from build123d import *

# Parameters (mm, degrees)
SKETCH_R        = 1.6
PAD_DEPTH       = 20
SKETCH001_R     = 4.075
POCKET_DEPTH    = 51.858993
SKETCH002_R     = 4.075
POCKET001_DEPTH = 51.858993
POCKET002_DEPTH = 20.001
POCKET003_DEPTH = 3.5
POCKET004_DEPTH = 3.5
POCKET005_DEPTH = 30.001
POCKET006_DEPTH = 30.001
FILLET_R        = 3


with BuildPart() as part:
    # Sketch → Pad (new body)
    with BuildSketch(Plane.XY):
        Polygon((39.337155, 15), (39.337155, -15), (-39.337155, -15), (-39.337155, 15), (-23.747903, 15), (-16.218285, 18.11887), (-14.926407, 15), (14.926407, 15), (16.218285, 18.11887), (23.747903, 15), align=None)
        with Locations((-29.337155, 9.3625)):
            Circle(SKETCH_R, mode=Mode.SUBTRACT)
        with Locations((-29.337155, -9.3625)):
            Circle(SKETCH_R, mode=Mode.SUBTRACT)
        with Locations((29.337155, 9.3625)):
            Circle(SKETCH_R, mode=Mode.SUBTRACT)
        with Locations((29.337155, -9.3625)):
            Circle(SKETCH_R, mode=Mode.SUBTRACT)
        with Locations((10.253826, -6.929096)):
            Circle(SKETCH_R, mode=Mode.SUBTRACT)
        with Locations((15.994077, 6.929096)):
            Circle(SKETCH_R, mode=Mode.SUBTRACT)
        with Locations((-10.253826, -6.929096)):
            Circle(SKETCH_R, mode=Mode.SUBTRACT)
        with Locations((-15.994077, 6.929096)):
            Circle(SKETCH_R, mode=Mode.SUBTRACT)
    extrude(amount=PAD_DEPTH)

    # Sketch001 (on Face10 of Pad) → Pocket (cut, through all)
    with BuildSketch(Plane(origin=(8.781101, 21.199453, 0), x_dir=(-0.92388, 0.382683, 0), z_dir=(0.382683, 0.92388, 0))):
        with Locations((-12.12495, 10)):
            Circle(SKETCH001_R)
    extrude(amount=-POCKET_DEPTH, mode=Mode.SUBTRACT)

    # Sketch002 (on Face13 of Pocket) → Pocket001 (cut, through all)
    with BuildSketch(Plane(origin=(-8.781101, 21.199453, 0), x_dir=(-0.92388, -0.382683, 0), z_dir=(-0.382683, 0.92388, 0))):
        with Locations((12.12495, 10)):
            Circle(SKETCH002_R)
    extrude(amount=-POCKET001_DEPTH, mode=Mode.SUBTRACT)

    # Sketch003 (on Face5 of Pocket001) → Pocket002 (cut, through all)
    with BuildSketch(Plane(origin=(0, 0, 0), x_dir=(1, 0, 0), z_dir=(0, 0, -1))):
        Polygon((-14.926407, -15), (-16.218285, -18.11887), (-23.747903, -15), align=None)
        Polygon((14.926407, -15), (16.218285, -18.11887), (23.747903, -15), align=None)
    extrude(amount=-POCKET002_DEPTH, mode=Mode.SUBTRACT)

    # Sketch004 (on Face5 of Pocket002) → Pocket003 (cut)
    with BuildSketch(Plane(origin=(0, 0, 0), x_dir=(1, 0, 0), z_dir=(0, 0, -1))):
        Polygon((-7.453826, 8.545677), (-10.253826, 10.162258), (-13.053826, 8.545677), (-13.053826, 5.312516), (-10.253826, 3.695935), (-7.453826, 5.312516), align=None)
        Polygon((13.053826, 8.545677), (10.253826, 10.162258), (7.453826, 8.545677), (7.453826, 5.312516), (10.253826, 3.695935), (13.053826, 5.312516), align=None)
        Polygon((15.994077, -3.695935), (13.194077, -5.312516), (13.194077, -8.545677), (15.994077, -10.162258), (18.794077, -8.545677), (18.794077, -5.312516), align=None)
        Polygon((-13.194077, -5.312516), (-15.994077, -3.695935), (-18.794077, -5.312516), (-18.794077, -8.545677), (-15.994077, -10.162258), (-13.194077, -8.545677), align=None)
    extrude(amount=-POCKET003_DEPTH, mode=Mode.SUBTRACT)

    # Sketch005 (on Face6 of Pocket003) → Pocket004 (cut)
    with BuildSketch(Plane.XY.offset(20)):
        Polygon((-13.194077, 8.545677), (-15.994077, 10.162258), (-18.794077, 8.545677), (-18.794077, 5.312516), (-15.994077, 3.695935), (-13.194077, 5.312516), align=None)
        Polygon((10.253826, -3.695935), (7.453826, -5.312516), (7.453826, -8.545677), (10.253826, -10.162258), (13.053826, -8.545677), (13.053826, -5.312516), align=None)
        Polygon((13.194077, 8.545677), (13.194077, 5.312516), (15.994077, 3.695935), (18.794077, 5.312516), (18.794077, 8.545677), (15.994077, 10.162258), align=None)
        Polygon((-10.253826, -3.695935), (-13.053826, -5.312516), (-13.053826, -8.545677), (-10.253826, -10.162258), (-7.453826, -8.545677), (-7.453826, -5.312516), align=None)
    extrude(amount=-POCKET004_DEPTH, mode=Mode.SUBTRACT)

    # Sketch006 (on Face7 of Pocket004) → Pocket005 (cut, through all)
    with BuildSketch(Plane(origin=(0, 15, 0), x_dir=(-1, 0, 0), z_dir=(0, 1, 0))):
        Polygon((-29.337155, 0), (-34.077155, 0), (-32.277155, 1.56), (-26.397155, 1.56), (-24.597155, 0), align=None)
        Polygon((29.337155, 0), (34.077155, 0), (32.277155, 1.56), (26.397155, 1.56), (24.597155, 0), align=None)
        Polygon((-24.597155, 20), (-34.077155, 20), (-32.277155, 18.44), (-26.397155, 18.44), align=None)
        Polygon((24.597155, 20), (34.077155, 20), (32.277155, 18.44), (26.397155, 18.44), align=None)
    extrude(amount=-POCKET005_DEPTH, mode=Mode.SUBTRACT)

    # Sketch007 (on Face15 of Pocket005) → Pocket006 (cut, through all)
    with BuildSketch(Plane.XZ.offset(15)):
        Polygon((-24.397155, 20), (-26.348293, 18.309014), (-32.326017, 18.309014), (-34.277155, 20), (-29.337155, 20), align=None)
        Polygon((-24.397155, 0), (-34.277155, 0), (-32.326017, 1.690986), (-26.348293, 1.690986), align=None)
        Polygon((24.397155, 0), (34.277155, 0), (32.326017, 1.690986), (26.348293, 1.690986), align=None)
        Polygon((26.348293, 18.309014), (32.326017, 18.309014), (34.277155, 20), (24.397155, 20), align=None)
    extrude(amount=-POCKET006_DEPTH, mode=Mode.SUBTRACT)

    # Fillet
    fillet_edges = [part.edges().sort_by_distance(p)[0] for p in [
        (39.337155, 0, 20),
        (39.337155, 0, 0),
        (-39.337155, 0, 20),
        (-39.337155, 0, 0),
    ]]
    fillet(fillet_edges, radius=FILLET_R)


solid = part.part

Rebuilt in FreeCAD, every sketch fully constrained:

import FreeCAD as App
import Part
import Sketcher
Q = App.Units.Quantity


def edges_at(feature, points):
    """Names of the edges that pass closest to the given points."""
    edges = feature.Shape.Edges
    near = lambda p: min(range(len(edges)), key=lambda i: edges[i].distToShape(Part.Vertex(*p))[0])
    return sorted({f"Edge{near(p) + 1}" for p in points})


def add_polygon(sketch, points):
    """Adds a closed chain of lines whose ends are joined by coincident constraints."""
    first, n = sketch.GeometryCount, len(points)
    for a, b in zip(points, points[1:] + points[:1]):
        sketch.addGeometry(Part.LineSegment(App.Vector(*a, 0), App.Vector(*b, 0)), False)
    for i in range(n):
        sketch.addConstraint(Sketcher.Constraint("Coincident", first + i, 2, first + (i + 1) % n, 1))

doc = App.newDocument("Part")
body = doc.addObject("PartDesign::Body", "Body")

# Sketch on XY plane
sketch1 = body.newObject("Sketcher::SketchObject", "Sketch")
sketch1.AttachmentSupport = (doc.getObject("XY_Plane"), [""])
sketch1.MapMode = "FlatFace"
add_polygon(sketch1, [(39.3, -15), (39.3, 15), (23.7, 15), (16.2, 18.1), (14.9, 15), (-14.9, 15), (-16.2, 18.1), (-23.7, 15), (-39.3, 15), (-39.3, -15)])  # lines 0-9
sketch1.addGeometry(Part.Circle(App.Vector(29.3, -9.4, 0), App.Vector(0, 0, 1), 1.6), False)  # 10
sketch1.addGeometry(Part.Circle(App.Vector(10.3, -6.9, 0), App.Vector(0, 0, 1), 1.6), False)  # 11
sketch1.addGeometry(Part.Circle(App.Vector(-10.3, -6.9, 0), App.Vector(0, 0, 1), 1.6), False)  # 12
sketch1.addGeometry(Part.Circle(App.Vector(-29.3, -9.4, 0), App.Vector(0, 0, 1), 1.6), False)  # 13
sketch1.addGeometry(Part.Circle(App.Vector(16, 6.9, 0), App.Vector(0, 0, 1), 1.6), False)  # 14
sketch1.addGeometry(Part.Circle(App.Vector(29.3, 9.4, 0), App.Vector(0, 0, 1), 1.6), False)  # 15
sketch1.addGeometry(Part.Circle(App.Vector(-16, 6.9, 0), App.Vector(0, 0, 1), 1.6), False)  # 16
sketch1.addGeometry(Part.Circle(App.Vector(-29.3, 9.4, 0), App.Vector(0, 0, 1), 1.6), False)  # 17
sketch1.addConstraint([
    Sketcher.Constraint("Vertical", 0),
    Sketcher.Constraint("Horizontal", 1),
    Sketcher.Constraint("Horizontal", 4),
    Sketcher.Constraint("Horizontal", 7),
    Sketcher.Constraint("Vertical", 8),
    Sketcher.Constraint("Horizontal", 9),
    Sketcher.Constraint("Equal", 10, 11),
    Sketcher.Constraint("Equal", 11, 12),
    Sketcher.Constraint("Equal", 12, 13),
    Sketcher.Constraint("Equal", 13, 14),
    Sketcher.Constraint("Equal", 14, 15),
    Sketcher.Constraint("Equal", 15, 16),
    Sketcher.Constraint("Equal", 16, 17),
    Sketcher.Constraint("Symmetric", 13, 3, 15, 3, -1, 1),
    Sketcher.Constraint("Symmetric", 10, 3, 17, 3, -1, 1),
    Sketcher.Constraint("Symmetric", 0, 2, 8, 2, -1, 1),
    Sketcher.Constraint("Symmetric", 11, 3, 12, 3, -2),
    Sketcher.Constraint("Symmetric", 10, 3, 13, 3, -2),
    Sketcher.Constraint("Symmetric", 14, 3, 16, 3, -2),
    Sketcher.Constraint("Symmetric", 2, 2, 5, 2, -2),
    Sketcher.Constraint("Symmetric", 1, 2, 6, 2, -2),
    Sketcher.Constraint("Perpendicular", 2, 3),
    Sketcher.Constraint("Perpendicular", 5, 6),
    Sketcher.Constraint("Horizontal", 1, 2, 3, 2),
    Sketcher.Constraint("Diameter", 10, 3.2),
    Sketcher.Constraint("DistanceY", 0, 1, 0, 2, 30.0),
    Sketcher.Constraint("Angle", 2, Q("157.499999 deg")),
    Sketcher.Constraint("DistanceX", 15, 3, 0, 2, 10.0),
    Sketcher.Constraint("Distance", 2, 8.15),
    Sketcher.Constraint("DistanceY", 10, 3, 15, 3, 18.725),
    Sketcher.Constraint("DistanceX", 9, 1, 9, 2, 78.67431),
    Sketcher.Constraint("DistanceX", 1, 2, 1, 1, 15.589252),
    Sketcher.Constraint("DistanceX", 11, 3, 10, 3, 19.083329),
    Sketcher.Constraint("DistanceX", 11, 3, 14, 3, 5.740251),
    Sketcher.Constraint("DistanceY", 11, 3, -1, 1, 6.929096),
    Sketcher.Constraint("DistanceY", -1, 1, 14, 3, 6.929096),
])
pad1 = body.newObject("PartDesign::Pad", "Pad")
pad1.Profile = sketch1
pad1.Length = 20

# Sketch on an angled plane
sketch2 = body.newObject("Sketcher::SketchObject", "Sketch001")
sketch2.Placement = App.Placement(App.Vector(8.781101, 21.199453, 0), App.Rotation(App.Vector(-0.923879754, 0.382682898, 0), App.Vector(0, 0, 1), App.Vector(0.382682898, 0.923879754, 0), "ZXY"))
sketch2.addGeometry(Part.Circle(App.Vector(-12.1, 10, 0), App.Vector(0, 0, 1), 4.1), False)
sketch2.addConstraint([
    Sketcher.Constraint("Diameter", 0, 8.15),
    Sketcher.Constraint("DistanceY", -1, 1, 0, 3, 10.0),
    Sketcher.Constraint("DistanceX", 0, 3, -1, 1, 12.12495),
])
pocket1 = body.newObject("PartDesign::Pocket", "Pocket")
pocket1.Profile = sketch2
pocket1.Type = "ThroughAll"

# Sketch on an angled plane
sketch3 = body.newObject("Sketcher::SketchObject", "Sketch002")
sketch3.Placement = App.Placement(App.Vector(-8.781101, 21.199453, 0), App.Rotation(App.Vector(-0.923879754, -0.382682898, 0), App.Vector(0, 0, 1), App.Vector(-0.382682898, 0.923879754, 0), "ZXY"))
sketch3.addGeometry(Part.Circle(App.Vector(12.1, 10, 0), App.Vector(0, 0, 1), 4.1), False)
sketch3.addConstraint([
    Sketcher.Constraint("Diameter", 0, 8.15),
    Sketcher.Constraint("DistanceY", -1, 1, 0, 3, 10.0),
    Sketcher.Constraint("DistanceX", -1, 1, 0, 3, 12.12495),
])
pocket2 = body.newObject("PartDesign::Pocket", "Pocket001")
pocket2.Profile = sketch3
pocket2.Type = "ThroughAll"

# Sketch on XY plane
sketch4 = body.newObject("Sketcher::SketchObject", "Sketch003")
sketch4.AttachmentSupport = (doc.getObject("XY_Plane"), [""])
sketch4.MapMode = "FlatFace"
add_polygon(sketch4, [(-16.2, 18.1), (-14.9, 15), (-23.7, 15)])  # lines 0-2
add_polygon(sketch4, [(14.9, 15), (16.2, 18.1), (23.7, 15)])  # lines 3-5
sketch4.addConstraint([
    Sketcher.Constraint("Horizontal", 1),
    Sketcher.Constraint("Horizontal", 5),
    Sketcher.Constraint("Symmetric", 2, 2, 3, 2, -2),
    Sketcher.Constraint("Symmetric", 1, 2, 4, 2, -2),
    Sketcher.Constraint("Perpendicular", 0, 2),
    Sketcher.Constraint("Perpendicular", 3, 4),
    Sketcher.Constraint("DistanceY", -1, 1, 0, 2, 15.0),
    Sketcher.Constraint("Angle", 0, Q("-67.500004 deg")),
    Sketcher.Constraint("Distance", 2, 8.15),
    Sketcher.Constraint("DistanceX", 0, 2, 3, 2, 31.144692),
])
pocket3 = body.newObject("PartDesign::Pocket", "Pocket002")
pocket3.Profile = sketch4
pocket3.Type = "ThroughAll"
pocket3.Reversed = True

# Sketch on XY plane
sketch5 = body.newObject("Sketcher::SketchObject", "Sketch004")
sketch5.AttachmentSupport = (doc.getObject("XY_Plane"), [""])
sketch5.MapMode = "FlatFace"
add_polygon(sketch5, [(-7.5, -8.5), (-10.3, -10.2), (-13.1, -8.5), (-13.1, -5.3), (-10.3, -3.7), (-7.5, -5.3)])  # lines 0-5
add_polygon(sketch5, [(13.1, -8.5), (10.3, -10.2), (7.5, -8.5), (7.5, -5.3), (10.3, -3.7), (13.1, -5.3)])  # lines 6-11
add_polygon(sketch5, [(16, 3.7), (13.2, 5.3), (13.2, 8.5), (16, 10.2), (18.8, 8.5), (18.8, 5.3)])  # lines 12-17
add_polygon(sketch5, [(-13.2, 5.3), (-16, 3.7), (-18.8, 5.3), (-18.8, 8.5), (-16, 10.2), (-13.2, 8.5)])  # lines 18-23
sketch5.addConstraint([
    Sketcher.Constraint("Vertical", 2),
    Sketcher.Constraint("Vertical", 5),
    Sketcher.Constraint("Vertical", 8),
    Sketcher.Constraint("Vertical", 11),
    Sketcher.Constraint("Vertical", 13),
    Sketcher.Constraint("Vertical", 16),
    Sketcher.Constraint("Vertical", 20),
    Sketcher.Constraint("Vertical", 23),
    Sketcher.Constraint("Symmetric", 0, 2, 6, 2, -2),
    Sketcher.Constraint("Symmetric", 5, 2, 7, 2, -2),
    Sketcher.Constraint("Symmetric", 3, 2, 9, 2, -2),
    Sketcher.Constraint("Symmetric", 2, 2, 10, 2, -2),
    Sketcher.Constraint("Symmetric", 17, 2, 18, 2, -2),
    Sketcher.Constraint("Symmetric", 16, 2, 19, 2, -2),
    Sketcher.Constraint("Symmetric", 14, 2, 21, 2, -2),
    Sketcher.Constraint("Symmetric", 13, 2, 22, 2, -2),
    Sketcher.Constraint("Parallel", 0, 3),
    Sketcher.Constraint("Parallel", 1, 4),
    Sketcher.Constraint("Parallel", 3, 6),
    Sketcher.Constraint("Parallel", 4, 7),
    Sketcher.Constraint("Parallel", 6, 9),
    Sketcher.Constraint("Parallel", 10, 12),
    Sketcher.Constraint("Parallel", 9, 14),
    Sketcher.Constraint("Parallel", 12, 15),
    Sketcher.Constraint("Parallel", 14, 17),
    Sketcher.Constraint("Parallel", 17, 18),
    Sketcher.Constraint("Parallel", 18, 21),
    Sketcher.Constraint("Horizontal", 2, 2, 4, 2),
    Sketcher.Constraint("Horizontal", 1, 2, 5, 2),
    Sketcher.Constraint("Horizontal", 13, 2, 15, 2),
    Sketcher.Constraint("Horizontal", 12, 2, 16, 2),
    Sketcher.Constraint("Equal", 11, 13),
    Sketcher.Constraint("Equal", 10, 12),
    Sketcher.Constraint("Angle", 0, Q("-149.999996 deg")),
    Sketcher.Constraint("DistanceX", 1, 2, 0, 2, 2.8),
    Sketcher.Constraint("DistanceY", 2, 1, 2, 2, 3.233161),
    Sketcher.Constraint("DistanceX", 5, 2, 6, 2, 17.707652),
    Sketcher.Constraint("DistanceX", 9, 2, 12, 2, 2.940251),
    Sketcher.Constraint("DistanceY", 9, 2, 12, 2, 9.008451),
    Sketcher.Constraint("DistanceY", 0, 2, -1, 1, 10.162258),
])
pocket4 = body.newObject("PartDesign::Pocket", "Pocket003")
pocket4.Profile = sketch5
pocket4.Length = 3.5
pocket4.Reversed = True

# Sketch on XY plane
sketch6 = body.newObject("Sketcher::SketchObject", "Sketch005")
sketch6.AttachmentSupport = (doc.getObject("XY_Plane"), [""])
sketch6.MapMode = "FlatFace"
sketch6.AttachmentOffset = App.Placement(App.Vector(0, 0, 20), App.Rotation())
add_polygon(sketch6, [(-13.2, 8.5), (-16, 10.2), (-18.8, 8.5), (-18.8, 5.3), (-16, 3.7), (-13.2, 5.3)])  # lines 0-5
add_polygon(sketch6, [(10.3, -3.7), (7.5, -5.3), (7.5, -8.5), (10.3, -10.2), (13.1, -8.5), (13.1, -5.3)])  # lines 6-11
add_polygon(sketch6, [(13.2, 8.5), (13.2, 5.3), (16, 3.7), (18.8, 5.3), (18.8, 8.5), (16, 10.2)])  # lines 12-17
add_polygon(sketch6, [(-10.3, -3.7), (-13.1, -5.3), (-13.1, -8.5), (-10.3, -10.2), (-7.5, -8.5), (-7.5, -5.3)])  # lines 18-23
sketch6.addConstraint([
    Sketcher.Constraint("Vertical", 2),
    Sketcher.Constraint("Vertical", 5),
    Sketcher.Constraint("Vertical", 7),
    Sketcher.Constraint("Vertical", 10),
    Sketcher.Constraint("Vertical", 12),
    Sketcher.Constraint("Vertical", 15),
    Sketcher.Constraint("Vertical", 19),
    Sketcher.Constraint("Vertical", 22),
    Sketcher.Constraint("Symmetric", 4, 2, 12, 2, -2),
    Sketcher.Constraint("Symmetric", 3, 2, 13, 2, -2),
    Sketcher.Constraint("Symmetric", 2, 2, 14, 2, -2),
    Sketcher.Constraint("Symmetric", 0, 2, 16, 2, -2),
    Sketcher.Constraint("Symmetric", 10, 2, 18, 2, -2),
    Sketcher.Constraint("Symmetric", 8, 2, 20, 2, -2),
    Sketcher.Constraint("Symmetric", 7, 2, 21, 2, -2),
    Sketcher.Constraint("Symmetric", 11, 2, 23, 2, -2),
    Sketcher.Constraint("Parallel", 0, 3),
    Sketcher.Constraint("Parallel", 1, 4),
    Sketcher.Constraint("Parallel", 4, 6),
    Sketcher.Constraint("Parallel", 3, 8),
    Sketcher.Constraint("Parallel", 6, 9),
    Sketcher.Constraint("Parallel", 8, 11),
    Sketcher.Constraint("Parallel", 11, 13),
    Sketcher.Constraint("Parallel", 13, 16),
    Sketcher.Constraint("Parallel", 14, 17),
    Sketcher.Constraint("Parallel", 16, 20),
    Sketcher.Constraint("Parallel", 20, 23),
    Sketcher.Constraint("Horizontal", 2, 2, 4, 2),
    Sketcher.Constraint("Horizontal", 1, 2, 5, 2),
    Sketcher.Constraint("Horizontal", 7, 2, 9, 2),
    Sketcher.Constraint("Horizontal", 6, 2, 10, 2),
    Sketcher.Constraint("Equal", 5, 7),
    Sketcher.Constraint("Equal", 4, 6),
    Sketcher.Constraint("Angle", 0, Q("149.999996 deg")),
    Sketcher.Constraint("DistanceX", 1, 2, 0, 2, 2.8),
    Sketcher.Constraint("DistanceY", 2, 2, 2, 1, 3.233161),
    Sketcher.Constraint("DistanceY", 6, 2, 4, 2, 10.625032),
    Sketcher.Constraint("DistanceX", 11, 2, 12, 2, 2.940251),
    Sketcher.Constraint("DistanceX", 0, 2, -1, 1, 15.994077),
    Sketcher.Constraint("DistanceY", -1, 1, 0, 2, 10.162258),
])
pocket5 = body.newObject("PartDesign::Pocket", "Pocket004")
pocket5.Profile = sketch6
pocket5.Length = 3.5

# Sketch on XZ plane
sketch7 = body.newObject("Sketcher::SketchObject", "Sketch006")
sketch7.AttachmentSupport = (doc.getObject("XZ_Plane"), [""])
sketch7.MapMode = "FlatFace"
sketch7.AttachmentOffset = App.Placement(App.Vector(0, 0, -15), App.Rotation())
add_polygon(sketch7, [(34.1, 0), (24.6, 0), (26.4, 1.6), (32.3, 1.6)])  # lines 0-3
add_polygon(sketch7, [(-34.1, 0), (-32.3, 1.6), (-26.4, 1.6), (-24.6, 0)])  # lines 4-7
add_polygon(sketch7, [(24.6, 20), (34.1, 20), (32.3, 18.4), (26.4, 18.4)])  # lines 8-11
add_polygon(sketch7, [(-34.1, 20), (-24.6, 20), (-26.4, 18.4), (-32.3, 18.4)])  # lines 12-15
sketch7.addConstraint([
    Sketcher.Constraint("Horizontal", 0),
    Sketcher.Constraint("Horizontal", 2),
    Sketcher.Constraint("Horizontal", 5),
    Sketcher.Constraint("Horizontal", 7),
    Sketcher.Constraint("Horizontal", 8),
    Sketcher.Constraint("Horizontal", 10),
    Sketcher.Constraint("Horizontal", 12),
    Sketcher.Constraint("Horizontal", 14),
    Sketcher.Constraint("Symmetric", 0, 2, 6, 2, -1, 1),
    Sketcher.Constraint("Symmetric", 2, 2, 4, 2, -2),
    Sketcher.Constraint("Symmetric", 3, 2, 7, 2, -2),
    Sketcher.Constraint("Symmetric", 11, 2, 12, 2, -2),
    Sketcher.Constraint("Symmetric", 10, 2, 13, 2, -2),
    Sketcher.Constraint("Parallel", 1, 4),
    Sketcher.Constraint("Parallel", 3, 6),
    Sketcher.Constraint("Parallel", 4, 9),
    Sketcher.Constraint("Parallel", 6, 11),
    Sketcher.Constraint("Parallel", 11, 15),
    Sketcher.Constraint("Vertical", 3, 2, 8, 2),
    Sketcher.Constraint("Vertical", 2, 2, 9, 2),
    Sketcher.Constraint("Vertical", 1, 2, 10, 2),
    Sketcher.Constraint("Vertical", 4, 2, 14, 2),
    Sketcher.Constraint("DistanceY", -1, 1, 8, 2, 20.0),
    Sketcher.Constraint("DistanceX", 0, 2, 0, 1, 9.48),
    Sketcher.Constraint("DistanceX", 2, 1, 2, 2, 5.88),
    Sketcher.Constraint("DistanceY", -1, 1, 1, 2, 1.56),
    Sketcher.Constraint("DistanceX", 4, 2, 0, 2, 56.87431),
])
pocket6 = body.newObject("PartDesign::Pocket", "Pocket005")
pocket6.Profile = sketch7
pocket6.Type = "ThroughAll"
pocket6.Reversed = True

# Sketch on XZ plane
sketch8 = body.newObject("Sketcher::SketchObject", "Sketch007")
sketch8.AttachmentSupport = (doc.getObject("XZ_Plane"), [""])
sketch8.MapMode = "FlatFace"
sketch8.AttachmentOffset = App.Placement(App.Vector(0, 0, 15), App.Rotation())
add_polygon(sketch8, [(-26.3, 18.3), (-24.4, 20), (-34.3, 20), (-32.3, 18.3)])  # lines 0-3
add_polygon(sketch8, [(-34.3, 0), (-24.4, 0), (-26.3, 1.7), (-32.3, 1.7)])  # lines 4-7
add_polygon(sketch8, [(24.4, 0), (34.3, 0), (32.3, 1.7), (26.3, 1.7)])  # lines 8-11
add_polygon(sketch8, [(26.3, 18.3), (32.3, 18.3), (34.3, 20), (24.4, 20)])  # lines 12-15
sketch8.addConstraint([
    Sketcher.Constraint("Horizontal", 1),
    Sketcher.Constraint("Horizontal", 3),
    Sketcher.Constraint("Horizontal", 4),
    Sketcher.Constraint("Horizontal", 6),
    Sketcher.Constraint("Horizontal", 8),
    Sketcher.Constraint("Horizontal", 10),
    Sketcher.Constraint("Horizontal", 12),
    Sketcher.Constraint("Horizontal", 14),
    Sketcher.Constraint("Symmetric", 7, 2, 8, 2, -1, 1),
    Sketcher.Constraint("Symmetric", 6, 2, 9, 2, -2),
    Sketcher.Constraint("Symmetric", 4, 2, 11, 2, -2),
    Sketcher.Constraint("Symmetric", 2, 2, 12, 2, -2),
    Sketcher.Constraint("Symmetric", 1, 2, 13, 2, -2),
    Sketcher.Constraint("Parallel", 2, 5),
    Sketcher.Constraint("Parallel", 0, 7),
    Sketcher.Constraint("Parallel", 5, 9),
    Sketcher.Constraint("Parallel", 7, 11),
    Sketcher.Constraint("Parallel", 9, 15),
    Sketcher.Constraint("Vertical", 0, 2, 4, 2),
    Sketcher.Constraint("Vertical", 3, 2, 5, 2),
    Sketcher.Constraint("Vertical", 2, 2, 6, 2),
    Sketcher.Constraint("Vertical", 11, 2, 14, 2),
    Sketcher.Constraint("DistanceY", -1, 1, 0, 2, 20.0),
    Sketcher.Constraint("DistanceX", 1, 2, 1, 1, 9.88),
    Sketcher.Constraint("DistanceX", 3, 1, 3, 2, 5.977724),
    Sketcher.Constraint("DistanceY", 5, 2, 3, 2, 16.618028),
    Sketcher.Constraint("DistanceX", 4, 2, 8, 2, 58.67431),
])
pocket7 = body.newObject("PartDesign::Pocket", "Pocket006")
pocket7.Profile = sketch8
pocket7.Type = "ThroughAll"
doc.recompute()

fillet = body.newObject("PartDesign::Fillet", "Fillet")
fillet.Base = (pocket7, edges_at(pocket7, [
    (39.337, 0, 20),
    (39.337, 0, 0),
    (-39.337, 0, 20),
    (-39.337, 0, 0),
]))
fillet.Radius = 3

doc.recompute()
